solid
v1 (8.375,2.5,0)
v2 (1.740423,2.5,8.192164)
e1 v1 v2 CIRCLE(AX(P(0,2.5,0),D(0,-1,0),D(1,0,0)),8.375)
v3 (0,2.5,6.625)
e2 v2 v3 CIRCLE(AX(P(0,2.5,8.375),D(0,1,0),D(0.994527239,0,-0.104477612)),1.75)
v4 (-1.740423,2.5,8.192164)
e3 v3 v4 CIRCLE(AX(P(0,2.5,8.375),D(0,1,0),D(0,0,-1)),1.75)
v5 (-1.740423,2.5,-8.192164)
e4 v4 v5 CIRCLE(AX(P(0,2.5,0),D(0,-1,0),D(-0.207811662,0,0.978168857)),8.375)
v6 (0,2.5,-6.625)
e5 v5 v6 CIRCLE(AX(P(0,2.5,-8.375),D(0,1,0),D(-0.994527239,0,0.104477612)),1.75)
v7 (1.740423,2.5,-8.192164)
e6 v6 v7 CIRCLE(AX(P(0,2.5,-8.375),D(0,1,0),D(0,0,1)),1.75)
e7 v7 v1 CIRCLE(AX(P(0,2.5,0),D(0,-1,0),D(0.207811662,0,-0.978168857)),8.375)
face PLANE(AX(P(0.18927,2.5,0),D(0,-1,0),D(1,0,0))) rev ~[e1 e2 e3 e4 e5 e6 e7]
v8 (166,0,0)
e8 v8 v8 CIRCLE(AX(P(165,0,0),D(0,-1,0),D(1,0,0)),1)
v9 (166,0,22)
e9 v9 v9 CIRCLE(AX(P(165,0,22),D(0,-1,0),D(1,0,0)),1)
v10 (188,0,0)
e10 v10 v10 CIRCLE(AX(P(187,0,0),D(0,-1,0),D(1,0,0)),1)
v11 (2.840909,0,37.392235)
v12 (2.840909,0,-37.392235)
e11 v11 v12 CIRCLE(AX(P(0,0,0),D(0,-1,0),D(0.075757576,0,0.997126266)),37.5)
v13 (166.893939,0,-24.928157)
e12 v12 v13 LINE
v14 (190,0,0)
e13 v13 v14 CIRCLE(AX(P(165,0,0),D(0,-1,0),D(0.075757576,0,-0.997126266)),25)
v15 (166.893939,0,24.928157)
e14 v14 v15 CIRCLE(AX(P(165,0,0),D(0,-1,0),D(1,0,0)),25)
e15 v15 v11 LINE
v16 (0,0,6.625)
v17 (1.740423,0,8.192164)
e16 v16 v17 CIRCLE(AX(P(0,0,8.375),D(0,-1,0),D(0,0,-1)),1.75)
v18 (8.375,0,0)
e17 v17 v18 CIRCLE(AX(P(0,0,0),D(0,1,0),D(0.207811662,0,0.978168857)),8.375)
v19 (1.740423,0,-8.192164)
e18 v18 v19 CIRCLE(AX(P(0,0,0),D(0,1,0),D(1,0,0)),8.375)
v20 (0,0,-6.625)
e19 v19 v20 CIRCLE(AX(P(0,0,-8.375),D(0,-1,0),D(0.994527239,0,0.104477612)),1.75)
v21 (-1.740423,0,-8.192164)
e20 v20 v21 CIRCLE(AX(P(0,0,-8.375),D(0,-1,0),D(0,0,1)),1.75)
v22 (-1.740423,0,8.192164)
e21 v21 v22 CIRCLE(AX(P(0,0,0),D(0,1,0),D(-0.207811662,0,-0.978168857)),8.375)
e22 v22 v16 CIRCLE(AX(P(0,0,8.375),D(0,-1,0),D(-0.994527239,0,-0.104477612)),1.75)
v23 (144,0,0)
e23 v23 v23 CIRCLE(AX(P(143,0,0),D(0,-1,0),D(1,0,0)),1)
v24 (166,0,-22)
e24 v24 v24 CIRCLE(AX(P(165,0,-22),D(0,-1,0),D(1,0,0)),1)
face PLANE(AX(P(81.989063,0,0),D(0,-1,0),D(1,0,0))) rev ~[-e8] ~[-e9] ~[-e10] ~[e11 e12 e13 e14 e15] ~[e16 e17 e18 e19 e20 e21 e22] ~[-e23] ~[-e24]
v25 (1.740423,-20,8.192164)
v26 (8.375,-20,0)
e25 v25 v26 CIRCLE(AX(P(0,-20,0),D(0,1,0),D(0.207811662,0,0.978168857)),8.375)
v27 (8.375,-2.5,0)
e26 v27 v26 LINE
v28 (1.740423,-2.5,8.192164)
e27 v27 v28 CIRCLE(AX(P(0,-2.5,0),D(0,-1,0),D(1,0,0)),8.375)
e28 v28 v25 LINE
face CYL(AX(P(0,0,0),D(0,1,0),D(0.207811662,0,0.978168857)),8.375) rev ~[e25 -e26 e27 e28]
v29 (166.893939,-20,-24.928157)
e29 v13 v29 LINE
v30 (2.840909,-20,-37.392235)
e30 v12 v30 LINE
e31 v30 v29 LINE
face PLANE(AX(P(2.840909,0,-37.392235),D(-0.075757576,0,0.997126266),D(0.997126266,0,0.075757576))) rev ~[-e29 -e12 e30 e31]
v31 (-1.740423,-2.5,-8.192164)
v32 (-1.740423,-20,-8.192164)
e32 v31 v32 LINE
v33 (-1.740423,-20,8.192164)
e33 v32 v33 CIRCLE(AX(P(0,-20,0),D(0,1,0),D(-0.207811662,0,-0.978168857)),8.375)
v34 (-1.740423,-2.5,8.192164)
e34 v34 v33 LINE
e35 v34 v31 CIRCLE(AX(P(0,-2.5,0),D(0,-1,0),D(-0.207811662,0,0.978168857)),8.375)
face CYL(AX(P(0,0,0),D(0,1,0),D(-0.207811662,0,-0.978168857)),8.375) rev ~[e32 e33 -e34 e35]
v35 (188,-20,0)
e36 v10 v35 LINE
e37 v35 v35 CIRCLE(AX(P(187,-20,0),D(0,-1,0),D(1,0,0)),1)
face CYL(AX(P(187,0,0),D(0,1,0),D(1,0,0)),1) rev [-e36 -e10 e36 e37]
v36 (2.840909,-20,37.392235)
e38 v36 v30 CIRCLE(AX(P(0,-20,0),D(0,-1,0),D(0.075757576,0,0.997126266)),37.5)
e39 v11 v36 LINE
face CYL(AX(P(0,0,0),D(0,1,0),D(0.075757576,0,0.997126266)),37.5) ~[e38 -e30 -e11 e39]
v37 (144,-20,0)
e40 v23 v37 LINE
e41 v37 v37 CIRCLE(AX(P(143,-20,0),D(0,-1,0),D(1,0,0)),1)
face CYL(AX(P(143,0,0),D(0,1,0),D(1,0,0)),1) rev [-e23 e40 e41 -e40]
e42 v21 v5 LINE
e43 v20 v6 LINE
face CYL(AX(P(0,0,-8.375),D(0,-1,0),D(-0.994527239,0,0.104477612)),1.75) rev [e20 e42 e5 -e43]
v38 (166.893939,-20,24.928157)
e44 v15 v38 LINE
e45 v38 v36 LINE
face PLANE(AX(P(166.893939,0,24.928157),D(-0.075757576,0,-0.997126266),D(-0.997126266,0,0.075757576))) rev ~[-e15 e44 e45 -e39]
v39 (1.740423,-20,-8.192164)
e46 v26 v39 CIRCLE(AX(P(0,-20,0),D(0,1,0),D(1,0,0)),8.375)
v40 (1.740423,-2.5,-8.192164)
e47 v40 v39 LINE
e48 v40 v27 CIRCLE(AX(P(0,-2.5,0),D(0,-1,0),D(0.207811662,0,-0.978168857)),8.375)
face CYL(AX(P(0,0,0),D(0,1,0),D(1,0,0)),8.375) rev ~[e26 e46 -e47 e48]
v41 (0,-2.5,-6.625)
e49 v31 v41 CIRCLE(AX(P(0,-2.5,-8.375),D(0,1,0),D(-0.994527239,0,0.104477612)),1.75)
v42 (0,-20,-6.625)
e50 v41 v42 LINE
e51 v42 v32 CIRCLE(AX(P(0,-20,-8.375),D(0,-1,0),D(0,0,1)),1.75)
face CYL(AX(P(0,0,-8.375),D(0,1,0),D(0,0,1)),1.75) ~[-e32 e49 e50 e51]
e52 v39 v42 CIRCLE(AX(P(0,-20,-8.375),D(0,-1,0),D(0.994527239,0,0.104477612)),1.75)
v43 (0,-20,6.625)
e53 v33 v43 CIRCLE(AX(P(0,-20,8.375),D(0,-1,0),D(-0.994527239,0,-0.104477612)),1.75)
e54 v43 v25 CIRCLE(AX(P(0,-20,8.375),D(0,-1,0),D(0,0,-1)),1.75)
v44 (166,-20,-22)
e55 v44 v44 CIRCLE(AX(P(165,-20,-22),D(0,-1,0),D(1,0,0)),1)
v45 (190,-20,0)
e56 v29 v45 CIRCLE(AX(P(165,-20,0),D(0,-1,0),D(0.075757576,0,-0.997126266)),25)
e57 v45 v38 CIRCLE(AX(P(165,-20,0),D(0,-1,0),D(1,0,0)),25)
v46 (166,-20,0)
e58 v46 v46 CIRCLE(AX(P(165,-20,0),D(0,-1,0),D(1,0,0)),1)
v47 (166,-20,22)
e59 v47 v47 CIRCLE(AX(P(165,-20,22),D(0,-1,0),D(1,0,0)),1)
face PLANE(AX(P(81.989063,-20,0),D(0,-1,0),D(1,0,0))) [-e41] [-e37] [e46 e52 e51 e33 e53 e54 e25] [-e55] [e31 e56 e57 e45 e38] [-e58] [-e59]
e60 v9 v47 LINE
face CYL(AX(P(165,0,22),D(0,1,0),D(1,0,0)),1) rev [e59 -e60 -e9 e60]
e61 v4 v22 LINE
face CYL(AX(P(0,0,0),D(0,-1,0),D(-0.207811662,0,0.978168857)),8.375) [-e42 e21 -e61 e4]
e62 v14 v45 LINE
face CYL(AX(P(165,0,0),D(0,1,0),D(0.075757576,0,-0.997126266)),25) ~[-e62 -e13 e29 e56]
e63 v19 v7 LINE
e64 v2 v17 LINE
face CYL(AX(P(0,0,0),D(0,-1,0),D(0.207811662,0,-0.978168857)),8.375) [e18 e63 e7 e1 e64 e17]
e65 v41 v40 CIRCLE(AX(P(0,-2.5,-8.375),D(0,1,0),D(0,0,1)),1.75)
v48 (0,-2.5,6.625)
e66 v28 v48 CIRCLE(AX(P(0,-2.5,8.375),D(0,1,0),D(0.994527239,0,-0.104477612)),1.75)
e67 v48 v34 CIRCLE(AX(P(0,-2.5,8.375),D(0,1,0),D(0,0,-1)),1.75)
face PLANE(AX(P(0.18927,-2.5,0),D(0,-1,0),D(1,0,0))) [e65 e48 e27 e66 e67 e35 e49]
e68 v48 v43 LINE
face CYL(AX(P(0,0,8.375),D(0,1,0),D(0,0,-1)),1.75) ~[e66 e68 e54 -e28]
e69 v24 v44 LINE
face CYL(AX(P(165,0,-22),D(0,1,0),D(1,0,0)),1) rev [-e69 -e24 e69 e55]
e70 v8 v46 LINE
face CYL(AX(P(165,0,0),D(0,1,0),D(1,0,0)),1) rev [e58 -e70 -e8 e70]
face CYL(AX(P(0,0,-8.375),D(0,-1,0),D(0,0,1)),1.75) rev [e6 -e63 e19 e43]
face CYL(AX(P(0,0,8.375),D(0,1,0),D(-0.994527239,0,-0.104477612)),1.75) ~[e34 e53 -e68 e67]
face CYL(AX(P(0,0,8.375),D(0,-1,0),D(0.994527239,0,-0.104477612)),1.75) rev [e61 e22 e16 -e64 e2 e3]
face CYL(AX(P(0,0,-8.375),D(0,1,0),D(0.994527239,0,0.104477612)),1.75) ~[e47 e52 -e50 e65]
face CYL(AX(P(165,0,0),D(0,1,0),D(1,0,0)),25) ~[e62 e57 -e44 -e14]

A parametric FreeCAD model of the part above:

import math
import FreeCAD as App
import Part
import Sketcher
from FreeCAD import Vector
Q = App.Units.Quantity

doc = App.newDocument("Part")
body = doc.addObject("PartDesign::Body", "Body")

sketch1 = doc.addObject("Sketcher::SketchObject", "Sketch")
body.addObject(sketch1)
sketch1.AttachmentSupport = (doc.XZ_Plane, [""])
sketch1.MapMode = "FlatFace"
sketch1.addGeometry([
    Part.LineSegment(Vector(2.8, -37.4, 0), Vector(166.9, -24.9, 0)),
    Part.ArcOfCircle(Part.Circle(Vector(165, 0, 0), Vector(0, 0, 1), 25), math.radians(-86), math.radians(0)),
    Part.ArcOfCircle(Part.Circle(Vector(165, 0, 0), Vector(0, 0, 1), 25), math.radians(0), math.radians(86)),
    Part.LineSegment(Vector(166.9, 24.9, 0), Vector(2.8, 37.4, 0)),
    Part.ArcOfCircle(Part.Circle(Vector(0, 0, 0), Vector(0, 0, 1), 37.5), math.radians(86), math.radians(274)),
    Part.Circle(Vector(165, -22, 0), Vector(0, 0, 1), 1),
    Part.ArcOfCircle(Part.Circle(Vector(0, 0, 0), Vector(0, 0, 1), 8.4), math.radians(102), math.radians(258)),
    Part.ArcOfCircle(Part.Circle(Vector(0, 8.4, 0), Vector(0, 0, 1), 1.8), math.radians(-174), math.radians(-90)),
    Part.ArcOfCircle(Part.Circle(Vector(0, 8.4, 0), Vector(0, 0, 1), 1.8), math.radians(-90), math.radians(-6)),
    Part.ArcOfCircle(Part.Circle(Vector(0, 0, 0), Vector(0, 0, 1), 8.4), math.radians(0), math.radians(78)),
    Part.ArcOfCircle(Part.Circle(Vector(0, 0, 0), Vector(0, 0, 1), 8.4), math.radians(-78), math.radians(0)),
    Part.ArcOfCircle(Part.Circle(Vector(0, -8.4, 0), Vector(0, 0, 1), 1.8), math.radians(6), math.radians(90)),
    Part.ArcOfCircle(Part.Circle(Vector(0, -8.4, 0), Vector(0, 0, 1), 1.8), math.radians(90), math.radians(174)),
    Part.Circle(Vector(143, 0, 0), Vector(0, 0, 1), 1),
    Part.Circle(Vector(165, 0, 0), Vector(0, 0, 1), 1),
    Part.Circle(Vector(187, 0, 0), Vector(0, 0, 1), 1),
    Part.Circle(Vector(165, 22, 0), Vector(0, 0, 1), 1),
], False)
sketch1.addConstraint([
    Sketcher.Constraint("Tangent", 0, 2, 1, 1),
    Sketcher.Constraint("Tangent", 1, 2, 2, 1),
    Sketcher.Constraint("Tangent", 2, 2, 3, 1),
    Sketcher.Constraint("Tangent", 3, 2, 4, 1),
    Sketcher.Constraint("Tangent", 4, 2, 0, 1),
    Sketcher.Constraint("Coincident", 6, 1, 7, 1),
    Sketcher.Constraint("Tangent", 7, 2, 8, 1),
    Sketcher.Constraint("Coincident", 8, 2, 9, 2),
    Sketcher.Constraint("Tangent", 9, 1, 10, 2),
    Sketcher.Constraint("Coincident", 10, 1, 11, 1),
    Sketcher.Constraint("Tangent", 11, 2, 12, 1),
    Sketcher.Constraint("Coincident", 12, 2, 6, 2),
    Sketcher.Constraint("Coincident", 4, 3, -1, 1),
    Sketcher.Constraint("Coincident", 6, 3, -1, 1),
    Sketcher.Constraint("Coincident", 9, 3, -1, 1),
    Sketcher.Constraint("Coincident", 14, 3, 1, 3),
    Sketcher.Constraint("Equal", 1, 2),
    Sketcher.Constraint("Equal", 7, 8),
    Sketcher.Constraint("Equal", 6, 9),
    Sketcher.Constraint("Equal", 9, 10),
    Sketcher.Constraint("Equal", 8, 11),
    Sketcher.Constraint("Equal", 11, 12),
    Sketcher.Constraint("Equal", 5, 13),
    Sketcher.Constraint("Equal", 13, 14),
    Sketcher.Constraint("Equal", 14, 15),
    Sketcher.Constraint("Equal", 15, 16),
    Sketcher.Constraint("Symmetric", 7, 3, 11, 3, -1, 1),
    Sketcher.Constraint("Symmetric", 5, 3, 16, 3, -1),
    Sketcher.Constraint("PointOnObject", 1, 3, -1),
    Sketcher.Constraint("PointOnObject", 7, 3, -2),
    Sketcher.Constraint("PointOnObject", 13, 3, -1),
    Sketcher.Constraint("PointOnObject", 15, 3, -1),
    Sketcher.Constraint("PointOnObject", 1, 2, -1),
    Sketcher.Constraint("PointOnObject", 7, 2, -2),
    Sketcher.Constraint("PointOnObject", 9, 1, -1),
    Sketcher.Constraint("PointOnObject", 11, 2, -2),
    Sketcher.Constraint("Vertical", 2, 3, 5, 3),
    Sketcher.Constraint("Diameter", 5, Q("2 mm")),
    Sketcher.Constraint("Radius", 1, Q("25 mm")),
    Sketcher.Constraint("Radius", 4, Q("37.5 mm")),
    Sketcher.Constraint("Radius", 7, Q("1.75 mm")),
    Sketcher.Constraint("DistanceX", -1, 1, 1, 3, Q("165 mm")),
    Sketcher.Constraint("DistanceY", 5, 3, -1, 1, Q("22 mm")),
    Sketcher.Constraint("DistanceX", -1, 1, 13, 3, Q("143 mm")),
    Sketcher.Constraint("DistanceX", -1, 1, 15, 3, Q("187 mm")),
    Sketcher.Constraint("Radius", 6, Q("8.375 mm")),
    Sketcher.Constraint("DistanceY", 11, 3, 7, 3, Q("16.75 mm")),
])
pad1 = doc.addObject("PartDesign::Pad", "Pad")
body.addObject(pad1)
pad1.Profile = sketch1
pad1.Length = 20

sketch2 = doc.addObject("Sketcher::SketchObject", "Sketch001")
body.addObject(sketch2)
sketch2.AttachmentSupport = (doc.XZ_Plane, [""])
sketch2.MapMode = "FlatFace"
sketch2.addGeometry([
    Part.ArcOfCircle(Part.Circle(Vector(0, 0, 0), Vector(0, 0, 1), 8.4), math.radians(-78), math.radians(0)),
    Part.ArcOfCircle(Part.Circle(Vector(0, 0, 0), Vector(0, 0, 1), 8.4), math.radians(0), math.radians(78)),
    Part.ArcOfCircle(Part.Circle(Vector(0, 8.4, 0), Vector(0, 0, 1), 1.8), math.radians(-90), math.radians(-6)),
    Part.ArcOfCircle(Part.Circle(Vector(0, 8.4, 0), Vector(0, 0, 1), 1.8), math.radians(-174), math.radians(-90)),
    Part.ArcOfCircle(Part.Circle(Vector(0, 0, 0), Vector(0, 0, 1), 8.4), math.radians(102), math.radians(258)),
    Part.ArcOfCircle(Part.Circle(Vector(0, -8.4, 0), Vector(0, 0, 1), 1.8), math.radians(90), math.radians(174)),
    Part.ArcOfCircle(Part.Circle(Vector(0, -8.4, 0), Vector(0, 0, 1), 1.8), math.radians(6), math.radians(90)),
], False)
sketch2.addConstraint([
    Sketcher.Constraint("Tangent", 0, 2, 1, 1),
    Sketcher.Constraint("Coincident", 1, 2, 2, 2),
    Sketcher.Constraint("Tangent", 2, 1, 3, 2),
    Sketcher.Constraint("Coincident", 3, 1, 4, 1),
    Sketcher.Constraint("Coincident", 4, 2, 5, 2),
    Sketcher.Constraint("Tangent", 5, 1, 6, 2),
    Sketcher.Constraint("Coincident", 6, 1, 0, 1),
    Sketcher.Constraint("Coincident", 0, 3, -1, 1),
    Sketcher.Constraint("Coincident", 4, 3, -1, 1),
    Sketcher.Constraint("Equal", 0, 1),
    Sketcher.Constraint("Equal", 2, 3),
    Sketcher.Constraint("Equal", 1, 4),
    Sketcher.Constraint("Equal", 3, 5),
    Sketcher.Constraint("Equal", 5, 6),
    Sketcher.Constraint("Symmetric", 2, 3, 5, 3, -1, 1),
    Sketcher.Constraint("PointOnObject", 2, 3, -2),
    Sketcher.Constraint("PointOnObject", 0, 2, -1),
    Sketcher.Constraint("PointOnObject", 2, 1, -2),
    Sketcher.Constraint("PointOnObject", 5, 1, -2),
    Sketcher.Constraint("Radius", 2, Q("1.75 mm")),
    Sketcher.Constraint("Radius", 0, Q("8.375 mm")),
    Sketcher.Constraint("DistanceY", 5, 3, 2, 3, Q("16.75 mm")),
])
pad2 = doc.addObject("PartDesign::Pad", "Pad001")
body.addObject(pad2)
pad2.Profile = sketch2
pad2.Length = 5
pad2.Midplane = True

doc.recompute()
